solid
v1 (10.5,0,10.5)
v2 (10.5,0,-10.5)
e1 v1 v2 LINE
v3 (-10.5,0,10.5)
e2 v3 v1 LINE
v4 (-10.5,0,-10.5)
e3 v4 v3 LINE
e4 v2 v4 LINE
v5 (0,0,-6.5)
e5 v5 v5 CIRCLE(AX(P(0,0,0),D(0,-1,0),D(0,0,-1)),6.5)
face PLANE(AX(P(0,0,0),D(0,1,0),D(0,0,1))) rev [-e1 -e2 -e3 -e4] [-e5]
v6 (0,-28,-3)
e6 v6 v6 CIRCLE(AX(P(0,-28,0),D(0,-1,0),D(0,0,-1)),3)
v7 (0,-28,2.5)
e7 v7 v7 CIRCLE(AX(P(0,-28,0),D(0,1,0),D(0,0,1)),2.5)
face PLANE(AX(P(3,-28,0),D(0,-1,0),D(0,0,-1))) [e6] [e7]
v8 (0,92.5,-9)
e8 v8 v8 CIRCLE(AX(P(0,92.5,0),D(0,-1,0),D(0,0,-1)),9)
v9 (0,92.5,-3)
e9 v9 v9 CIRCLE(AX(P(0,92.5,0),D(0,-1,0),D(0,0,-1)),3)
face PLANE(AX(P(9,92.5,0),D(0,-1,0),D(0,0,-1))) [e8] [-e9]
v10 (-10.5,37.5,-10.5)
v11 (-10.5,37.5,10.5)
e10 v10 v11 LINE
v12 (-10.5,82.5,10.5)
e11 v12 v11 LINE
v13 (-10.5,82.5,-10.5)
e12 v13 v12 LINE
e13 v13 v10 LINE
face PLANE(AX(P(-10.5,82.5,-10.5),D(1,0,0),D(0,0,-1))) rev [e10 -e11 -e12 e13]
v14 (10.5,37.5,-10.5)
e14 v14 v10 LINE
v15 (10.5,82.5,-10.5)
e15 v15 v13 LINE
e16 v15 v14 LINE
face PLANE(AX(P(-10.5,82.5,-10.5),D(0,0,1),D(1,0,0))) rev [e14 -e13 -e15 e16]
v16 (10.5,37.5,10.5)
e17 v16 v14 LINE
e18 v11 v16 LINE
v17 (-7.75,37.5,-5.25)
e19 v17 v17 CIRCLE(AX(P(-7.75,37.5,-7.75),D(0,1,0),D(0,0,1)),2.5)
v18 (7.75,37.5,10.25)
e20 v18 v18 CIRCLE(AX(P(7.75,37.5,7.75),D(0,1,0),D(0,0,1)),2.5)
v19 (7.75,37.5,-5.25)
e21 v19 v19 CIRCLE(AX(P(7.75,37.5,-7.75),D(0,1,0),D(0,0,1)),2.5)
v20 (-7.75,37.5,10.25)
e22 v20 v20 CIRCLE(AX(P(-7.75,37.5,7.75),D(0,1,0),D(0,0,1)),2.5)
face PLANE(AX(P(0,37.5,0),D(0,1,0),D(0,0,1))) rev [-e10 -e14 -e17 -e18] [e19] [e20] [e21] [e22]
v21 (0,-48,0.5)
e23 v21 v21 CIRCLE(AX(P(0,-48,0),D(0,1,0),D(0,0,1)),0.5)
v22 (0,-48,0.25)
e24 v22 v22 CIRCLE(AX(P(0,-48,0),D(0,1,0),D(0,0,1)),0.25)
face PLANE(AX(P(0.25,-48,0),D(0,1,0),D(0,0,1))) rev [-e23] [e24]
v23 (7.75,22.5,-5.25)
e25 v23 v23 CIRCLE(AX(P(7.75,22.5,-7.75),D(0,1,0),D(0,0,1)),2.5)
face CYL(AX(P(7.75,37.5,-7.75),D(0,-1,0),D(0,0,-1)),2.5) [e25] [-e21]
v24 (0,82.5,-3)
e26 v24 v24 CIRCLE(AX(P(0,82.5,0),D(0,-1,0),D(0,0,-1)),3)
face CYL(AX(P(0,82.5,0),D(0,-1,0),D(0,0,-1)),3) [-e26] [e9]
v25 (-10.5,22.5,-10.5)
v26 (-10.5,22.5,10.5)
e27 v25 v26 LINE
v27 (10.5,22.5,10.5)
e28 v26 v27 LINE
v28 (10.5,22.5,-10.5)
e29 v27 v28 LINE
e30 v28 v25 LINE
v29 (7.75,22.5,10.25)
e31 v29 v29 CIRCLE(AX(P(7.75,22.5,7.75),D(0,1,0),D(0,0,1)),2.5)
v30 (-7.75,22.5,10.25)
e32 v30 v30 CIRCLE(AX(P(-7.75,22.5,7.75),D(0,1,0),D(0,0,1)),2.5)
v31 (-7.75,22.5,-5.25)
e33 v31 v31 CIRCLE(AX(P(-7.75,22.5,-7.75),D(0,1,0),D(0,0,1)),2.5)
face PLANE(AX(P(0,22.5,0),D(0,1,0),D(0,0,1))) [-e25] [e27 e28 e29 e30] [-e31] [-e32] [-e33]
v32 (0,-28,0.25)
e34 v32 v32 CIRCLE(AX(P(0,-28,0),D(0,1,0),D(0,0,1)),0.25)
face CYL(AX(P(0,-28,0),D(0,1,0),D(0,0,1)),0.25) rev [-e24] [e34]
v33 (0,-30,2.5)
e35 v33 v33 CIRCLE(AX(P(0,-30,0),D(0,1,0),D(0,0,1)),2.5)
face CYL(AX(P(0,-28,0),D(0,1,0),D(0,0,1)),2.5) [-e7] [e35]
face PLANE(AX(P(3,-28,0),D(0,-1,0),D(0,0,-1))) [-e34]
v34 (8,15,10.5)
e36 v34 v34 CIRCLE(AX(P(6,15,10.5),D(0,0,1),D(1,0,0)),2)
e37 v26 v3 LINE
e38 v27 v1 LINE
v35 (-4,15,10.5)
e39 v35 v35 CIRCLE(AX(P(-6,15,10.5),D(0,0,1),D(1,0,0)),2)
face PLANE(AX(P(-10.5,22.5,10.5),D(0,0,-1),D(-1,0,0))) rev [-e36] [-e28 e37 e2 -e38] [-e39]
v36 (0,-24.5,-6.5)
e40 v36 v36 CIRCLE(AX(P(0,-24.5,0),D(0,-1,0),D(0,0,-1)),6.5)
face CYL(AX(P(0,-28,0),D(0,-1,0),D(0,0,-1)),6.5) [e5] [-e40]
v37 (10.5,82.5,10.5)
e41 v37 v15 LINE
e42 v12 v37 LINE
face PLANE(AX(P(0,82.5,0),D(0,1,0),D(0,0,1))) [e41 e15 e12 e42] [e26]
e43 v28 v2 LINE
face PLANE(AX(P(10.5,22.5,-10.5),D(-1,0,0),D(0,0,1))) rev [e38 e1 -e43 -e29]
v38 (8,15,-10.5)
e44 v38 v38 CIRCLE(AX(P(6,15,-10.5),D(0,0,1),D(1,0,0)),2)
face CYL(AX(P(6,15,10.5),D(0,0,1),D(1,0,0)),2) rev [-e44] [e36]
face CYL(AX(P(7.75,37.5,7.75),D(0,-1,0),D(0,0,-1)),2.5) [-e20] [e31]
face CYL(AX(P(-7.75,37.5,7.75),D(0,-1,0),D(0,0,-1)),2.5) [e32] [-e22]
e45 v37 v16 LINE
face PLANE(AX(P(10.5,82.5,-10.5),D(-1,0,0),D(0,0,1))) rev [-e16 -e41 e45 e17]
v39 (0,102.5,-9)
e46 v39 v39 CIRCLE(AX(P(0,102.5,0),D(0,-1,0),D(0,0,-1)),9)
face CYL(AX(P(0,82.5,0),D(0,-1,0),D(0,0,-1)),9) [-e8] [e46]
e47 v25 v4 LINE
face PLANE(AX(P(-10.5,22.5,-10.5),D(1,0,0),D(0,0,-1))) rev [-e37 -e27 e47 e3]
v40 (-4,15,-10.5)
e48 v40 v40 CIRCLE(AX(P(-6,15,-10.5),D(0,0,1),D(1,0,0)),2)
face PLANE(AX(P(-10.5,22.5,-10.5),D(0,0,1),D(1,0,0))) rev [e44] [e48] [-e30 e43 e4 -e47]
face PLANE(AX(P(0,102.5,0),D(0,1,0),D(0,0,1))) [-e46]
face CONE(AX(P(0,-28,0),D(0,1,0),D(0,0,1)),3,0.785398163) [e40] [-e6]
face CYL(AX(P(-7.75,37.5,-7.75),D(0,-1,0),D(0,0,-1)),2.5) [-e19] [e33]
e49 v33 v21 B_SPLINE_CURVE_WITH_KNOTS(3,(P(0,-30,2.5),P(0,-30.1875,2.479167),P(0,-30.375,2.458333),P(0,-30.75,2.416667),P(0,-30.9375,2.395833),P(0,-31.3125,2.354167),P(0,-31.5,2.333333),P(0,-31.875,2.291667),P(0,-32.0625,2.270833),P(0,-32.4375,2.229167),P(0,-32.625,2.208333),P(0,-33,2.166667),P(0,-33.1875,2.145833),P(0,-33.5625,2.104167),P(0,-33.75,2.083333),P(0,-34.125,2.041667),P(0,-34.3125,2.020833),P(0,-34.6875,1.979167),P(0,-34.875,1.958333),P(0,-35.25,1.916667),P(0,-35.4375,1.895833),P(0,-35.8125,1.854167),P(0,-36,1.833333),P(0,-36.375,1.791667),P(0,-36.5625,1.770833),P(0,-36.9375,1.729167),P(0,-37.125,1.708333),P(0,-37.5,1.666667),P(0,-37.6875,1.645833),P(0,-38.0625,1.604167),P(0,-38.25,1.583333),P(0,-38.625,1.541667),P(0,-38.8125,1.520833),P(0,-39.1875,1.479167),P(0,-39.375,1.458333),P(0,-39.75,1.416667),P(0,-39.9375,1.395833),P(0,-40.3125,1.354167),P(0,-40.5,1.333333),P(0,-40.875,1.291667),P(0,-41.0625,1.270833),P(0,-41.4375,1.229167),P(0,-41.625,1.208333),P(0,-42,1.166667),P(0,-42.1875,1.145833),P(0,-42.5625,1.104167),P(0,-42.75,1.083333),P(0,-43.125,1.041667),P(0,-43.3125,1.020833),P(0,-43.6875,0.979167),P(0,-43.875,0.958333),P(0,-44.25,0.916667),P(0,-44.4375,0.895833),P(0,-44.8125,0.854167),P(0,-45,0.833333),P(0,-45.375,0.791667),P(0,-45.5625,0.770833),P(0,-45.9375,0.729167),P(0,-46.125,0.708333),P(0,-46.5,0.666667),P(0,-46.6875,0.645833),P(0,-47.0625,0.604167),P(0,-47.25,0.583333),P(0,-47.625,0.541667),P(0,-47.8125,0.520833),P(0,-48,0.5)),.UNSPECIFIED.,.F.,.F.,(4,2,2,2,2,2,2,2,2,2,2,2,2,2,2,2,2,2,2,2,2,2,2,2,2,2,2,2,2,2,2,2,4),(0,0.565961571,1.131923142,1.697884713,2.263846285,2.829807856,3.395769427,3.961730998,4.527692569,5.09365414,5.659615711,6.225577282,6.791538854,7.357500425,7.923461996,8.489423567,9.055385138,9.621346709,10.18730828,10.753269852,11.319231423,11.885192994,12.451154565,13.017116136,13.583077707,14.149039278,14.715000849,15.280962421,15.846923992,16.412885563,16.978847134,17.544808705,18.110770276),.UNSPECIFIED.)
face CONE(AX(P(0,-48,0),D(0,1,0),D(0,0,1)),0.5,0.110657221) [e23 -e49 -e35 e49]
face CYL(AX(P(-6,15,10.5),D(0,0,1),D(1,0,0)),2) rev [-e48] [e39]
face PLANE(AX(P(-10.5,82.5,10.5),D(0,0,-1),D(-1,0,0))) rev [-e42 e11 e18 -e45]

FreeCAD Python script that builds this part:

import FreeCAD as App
import Part
import Sketcher
Q = App.Units.Quantity

doc = App.newDocument("Part")
body = doc.addObject("PartDesign::Body", "Body")

# Sketch on XZ plane
sketch1 = body.newObject("Sketcher::SketchObject", "Sketch")
sketch1.AttachmentSupport = (doc.getObject("XZ_Plane"), [""])
sketch1.MapMode = "FlatFace"
sketch1.addGeometry(Part.LineSegment(App.Vector(-10.5, -10.5, 0), App.Vector(-10.5, 10.5, 0)), False)
sketch1.addGeometry(Part.LineSegment(App.Vector(-10.5, 10.5, 0), App.Vector(10.5, 10.5, 0)), False)
sketch1.addGeometry(Part.LineSegment(App.Vector(10.5, 10.5, 0), App.Vector(10.5, -10.5, 0)), False)
sketch1.addGeometry(Part.LineSegment(App.Vector(10.5, -10.5, 0), App.Vector(-10.5, -10.5, 0)), False)
sketch1.addConstraint(Sketcher.Constraint("Coincident", 0, 2, 1, 1))
sketch1.addConstraint(Sketcher.Constraint("Coincident", 1, 2, 2, 1))
sketch1.addConstraint(Sketcher.Constraint("Coincident", 2, 2, 3, 1))
sketch1.addConstraint(Sketcher.Constraint("Coincident", 3, 2, 0, 1))
sketch1.addConstraint(Sketcher.Constraint("Vertical", 0))
sketch1.addConstraint(Sketcher.Constraint("Horizontal", 1))
sketch1.addConstraint(Sketcher.Constraint("Vertical", 2))
sketch1.addConstraint(Sketcher.Constraint("Horizontal", 3))
sketch1.addConstraint(Sketcher.Constraint("Symmetric", 0, 2, 2, 2, -1, 1))
sketch1.addConstraint(Sketcher.Constraint("Equal", 3, 0))
sketch1.addConstraint(Sketcher.Constraint("DistanceX", 1, 1, 1, 2, Q("21 mm")))
pad1 = body.newObject("PartDesign::Pad", "Pad")
pad1.Profile = sketch1
pad1.Length = 22.5
pad1.Reversed = True

# Sketch on XY plane
sketch2 = body.newObject("Sketcher::SketchObject", "Sketch001")
sketch2.AttachmentSupport = (doc.getObject("XY_Plane"), [""])
sketch2.MapMode = "FlatFace"
sketch2.addGeometry(Part.LineSegment(App.Vector(6.5, 0, 0), App.Vector(0, 0, 0)), False)
sketch2.addGeometry(Part.LineSegment(App.Vector(0, 0, 0), App.Vector(0, -28, 0)), False)
sketch2.addGeometry(Part.LineSegment(App.Vector(0, -28, 0), App.Vector(3, -28, 0)), False)
sketch2.addGeometry(Part.LineSegment(App.Vector(3, -28, 0), App.Vector(6.5, -24.5, 0)), False)
sketch2.addGeometry(Part.LineSegment(App.Vector(6.5, -24.5, 0), App.Vector(6.5, 0, 0)), False)
sketch2.addConstraint(Sketcher.Constraint("Coincident", 0, 2, 1, 1))
sketch2.addConstraint(Sketcher.Constraint("Coincident", 1, 2, 2, 1))
sketch2.addConstraint(Sketcher.Constraint("Coincident", 2, 2, 3, 1))
sketch2.addConstraint(Sketcher.Constraint("Coincident", 3, 2, 4, 1))
sketch2.addConstraint(Sketcher.Constraint("Coincident", 4, 2, 0, 1))
sketch2.addConstraint(Sketcher.Constraint("Horizontal", 0))
sketch2.addConstraint(Sketcher.Constraint("Vertical", 1))
sketch2.addConstraint(Sketcher.Constraint("Horizontal", 2))
sketch2.addConstraint(Sketcher.Constraint("Vertical", 4))
sketch2.addConstraint(Sketcher.Constraint("Coincident", 0, 2, -1, 1))
sketch2.addConstraint(Sketcher.Constraint("DistanceX", 2, 1, 2, 2, Q("3 mm")))
sketch2.addConstraint(Sketcher.Constraint("DistanceY", 1, 2, 1, 1, Q("28 mm")))
sketch2.addConstraint(Sketcher.Constraint("Angle", 3, Q("45 deg")))
sketch2.addConstraint(Sketcher.Constraint("DistanceX", 0, 2, 0, 1, Q("6.5 mm")))
revolution = body.newObject("PartDesign::Revolution", "Revolution")
revolution.Profile = sketch2
revolution.ReferenceAxis = (sketch2, ["V_Axis"])
revolution.Angle = 360

# Sketch on XY plane
sketch3 = body.newObject("Sketcher::SketchObject", "Sketch002")
sketch3.AttachmentSupport = (doc.getObject("XY_Plane"), [""])
sketch3.MapMode = "FlatFace"
sketch3.AttachmentOffset = App.Placement(App.Vector(0, 0, 10.5), App.Rotation())
sketch3.addGeometry(Part.Circle(App.Vector(-6, 15, 0), App.Vector(0, 0, 1), 2), False)
sketch3.addGeometry(Part.Circle(App.Vector(6, 15, 0), App.Vector(0, 0, 1), 2), False)
sketch3.addConstraint(Sketcher.Constraint("Equal", 0, 1))
sketch3.addConstraint(Sketcher.Constraint("Symmetric", 0, 3, 1, 3, -2))
sketch3.addConstraint(Sketcher.Constraint("Diameter", 0, Q("4 mm")))
sketch3.addConstraint(Sketcher.Constraint("DistanceX", 0, 3, -1, 1, Q("6 mm")))
sketch3.addConstraint(Sketcher.Constraint("DistanceY", -1, 1, 0, 3, Q("15 mm")))
doc.recompute()
hole = body.newObject("PartDesign::Hole", "Hole")
hole.Profile = sketch3
hole.ThreadType = "None"
hole.Diameter = 4
hole.DepthType = "ThroughAll"

# Sketch on XY plane
sketch4 = body.newObject("Sketcher::SketchObject", "Sketch003")
sketch4.AttachmentSupport = (doc.getObject("XY_Plane"), [""])
sketch4.MapMode = "FlatFace"
sketch4.addGeometry(Part.LineSegment(App.Vector(2.5, -28, 0), App.Vector(0.25, -28, 0)), False)
sketch4.addGeometry(Part.LineSegment(App.Vector(0.25, -28, 0), App.Vector(0.25, -48, 0)), False)
sketch4.addGeometry(Part.LineSegment(App.Vector(0.25, -48, 0), App.Vector(0.5, -48, 0)), False)
sketch4.addGeometry(Part.LineSegment(App.Vector(0.5, -48, 0), App.Vector(2.5, -30, 0)), False)
sketch4.addGeometry(Part.LineSegment(App.Vector(2.5, -30, 0), App.Vector(2.5, -28, 0)), False)
sketch4.addConstraint(Sketcher.Constraint("Coincident", 0, 2, 1, 1))
sketch4.addConstraint(Sketcher.Constraint("Coincident", 1, 2, 2, 1))
sketch4.addConstraint(Sketcher.Constraint("Coincident", 2, 2, 3, 1))
sketch4.addConstraint(Sketcher.Constraint("Coincident", 3, 2, 4, 1))
sketch4.addConstraint(Sketcher.Constraint("Coincident", 4, 2, 0, 1))
sketch4.addConstraint(Sketcher.Constraint("Horizontal", 0))
sketch4.addConstraint(Sketcher.Constraint("Vertical", 1))
sketch4.addConstraint(Sketcher.Constraint("Horizontal", 2))
sketch4.addConstraint(Sketcher.Constraint("Vertical", 4))
sketch4.addConstraint(Sketcher.Constraint("DistanceY", 1, 2, 1, 1, Q("20 mm")))
sketch4.addConstraint(Sketcher.Constraint("DistanceY", 4, 1, 4, 2, Q("2 mm")))
sketch4.addConstraint(Sketcher.Constraint("DistanceY", 0, 2, -1, 1, Q("28 mm")))
sketch4.addConstraint(Sketcher.Constraint("DistanceX", 2, 2, 3, 2, Q("2 mm")))
sketch4.addConstraint(Sketcher.Constraint("DistanceX", 0, 2, 0, 1, Q("2.25 mm")))
sketch4.addConstraint(Sketcher.Constraint("DistanceX", -1, 1, 2, 2, Q("0.5 mm")))
revolution2 = body.newObject("PartDesign::Revolution", "Revolution001")
revolution2.Profile = sketch4
revolution2.ReferenceAxis = (sketch4, ["V_Axis"])
revolution2.Angle = 360

# Sketch on XZ plane
sketch5 = body.newObject("Sketcher::SketchObject", "Sketch004")
sketch5.AttachmentSupport = (doc.getObject("XZ_Plane"), [""])
sketch5.MapMode = "FlatFace"
sketch5.AttachmentOffset = App.Placement(App.Vector(0, 0, -22.5), App.Rotation())
sketch5.addGeometry(Part.Circle(App.Vector(-7.75, -7.75, 0), App.Vector(0, 0, 1), 2.5), False)
sketch5.addGeometry(Part.Circle(App.Vector(7.75, -7.75, 0), App.Vector(0, 0, 1), 2.5), False)
sketch5.addGeometry(Part.Circle(App.Vector(7.75, 7.75, 0), App.Vector(0, 0, 1), 2.5), False)
sketch5.addGeometry(Part.Circle(App.Vector(-7.75, 7.75, 0), App.Vector(0, 0, 1), 2.5), False)
sketch5.addConstraint(Sketcher.Constraint("Equal", 0, 1))
sketch5.addConstraint(Sketcher.Constraint("Equal", 1, 2))
sketch5.addConstraint(Sketcher.Constraint("Equal", 2, 3))
sketch5.addConstraint(Sketcher.Constraint("Symmetric", 0, 3, 2, 3, -1, 1))
sketch5.addConstraint(Sketcher.Constraint("Symmetric", 1, 3, 3, 3, -1, 1))
sketch5.addConstraint(Sketcher.Constraint("Symmetric", 0, 3, 1, 3, -2))
sketch5.addConstraint(Sketcher.Constraint("Diameter", 0, Q("5 mm")))
sketch5.addConstraint(Sketcher.Constraint("DistanceX", 0, 3, 1, 3, Q("15.5 mm")))
sketch5.addConstraint(Sketcher.Constraint("DistanceY", 1, 3, 2, 3, Q("15.5 mm")))
pad2 = body.newObject("PartDesign::Pad", "Pad001")
pad2.Profile = sketch5
pad2.Length = 15
pad2.Reversed = True

# Sketch on XZ plane
sketch6 = body.newObject("Sketcher::SketchObject", "Sketch005")
sketch6.AttachmentSupport = (doc.getObject("XZ_Plane"), [""])
sketch6.MapMode = "FlatFace"
sketch6.AttachmentOffset = App.Placement(App.Vector(0, 0, -37.5), App.Rotation())
sketch6.addGeometry(Part.LineSegment(App.Vector(-10.5, -10.5, 0), App.Vector(-10.5, 10.5, 0)), False)
sketch6.addGeometry(Part.LineSegment(App.Vector(-10.5, 10.5, 0), App.Vector(10.5, 10.5, 0)), False)
sketch6.addGeometry(Part.LineSegment(App.Vector(10.5, 10.5, 0), App.Vector(10.5, -10.5, 0)), False)
sketch6.addGeometry(Part.LineSegment(App.Vector(10.5, -10.5, 0), App.Vector(-10.5, -10.5, 0)), False)
sketch6.addConstraint(Sketcher.Constraint("Coincident", 0, 2, 1, 1))
sketch6.addConstraint(Sketcher.Constraint("Coincident", 1, 2, 2, 1))
sketch6.addConstraint(Sketcher.Constraint("Coincident", 2, 2, 3, 1))
sketch6.addConstraint(Sketcher.Constraint("Coincident", 3, 2, 0, 1))
sketch6.addConstraint(Sketcher.Constraint("Vertical", 0))
sketch6.addConstraint(Sketcher.Constraint("Horizontal", 1))
sketch6.addConstraint(Sketcher.Constraint("Vertical", 2))
sketch6.addConstraint(Sketcher.Constraint("Horizontal", 3))
sketch6.addConstraint(Sketcher.Constraint("Symmetric", 0, 2, 2, 2, -1, 1))
sketch6.addConstraint(Sketcher.Constraint("Equal", 3, 0))
sketch6.addConstraint(Sketcher.Constraint("DistanceX", 1, 1, 1, 2, Q("21 mm")))
pad3 = body.newObject("PartDesign::Pad", "Pad002")
pad3.Profile = sketch6
pad3.Length = 45
pad3.Reversed = True

# Sketch on XY plane
sketch7 = body.newObject("Sketcher::SketchObject", "Sketch006")
sketch7.AttachmentSupport = (doc.getObject("XY_Plane"), [""])
sketch7.MapMode = "FlatFace"
sketch7.addGeometry(Part.LineSegment(App.Vector(0, 102.5, 0), App.Vector(0, 82.5, 0)), False)
sketch7.addGeometry(Part.LineSegment(App.Vector(0, 82.5, 0), App.Vector(3, 82.5, 0)), False)
sketch7.addGeometry(Part.LineSegment(App.Vector(3, 82.5, 0), App.Vector(3, 92.5, 0)), False)
sketch7.addGeometry(Part.LineSegment(App.Vector(3, 92.5, 0), App.Vector(9, 92.5, 0)), False)
sketch7.addGeometry(Part.LineSegment(App.Vector(9, 92.5, 0), App.Vector(9, 102.5, 0)), False)
sketch7.addGeometry(Part.LineSegment(App.Vector(9, 102.5, 0), App.Vector(0, 102.5, 0)), False)
sketch7.addConstraint(Sketcher.Constraint("Coincident", 0, 2, 1, 1))
sketch7.addConstraint(Sketcher.Constraint("Coincident", 1, 2, 2, 1))
sketch7.addConstraint(Sketcher.Constraint("Coincident", 2, 2, 3, 1))
sketch7.addConstraint(Sketcher.Constraint("Coincident", 3, 2, 4, 1))
sketch7.addConstraint(Sketcher.Constraint("Coincident", 4, 2, 5, 1))
sketch7.addConstraint(Sketcher.Constraint("Coincident", 5, 2, 0, 1))
sketch7.addConstraint(Sketcher.Constraint("Vertical", 0))
sketch7.addConstraint(Sketcher.Constraint("Horizontal", 1))
sketch7.addConstraint(Sketcher.Constraint("Vertical", 2))
sketch7.addConstraint(Sketcher.Constraint("Horizontal", 3))
sketch7.addConstraint(Sketcher.Constraint("Vertical", 4))
sketch7.addConstraint(Sketcher.Constraint("Horizontal", 5))
sketch7.addConstraint(Sketcher.Constraint("PointOnObject", 0, 2, -2))
sketch7.addConstraint(Sketcher.Constraint("Equal", 2, 4))
sketch7.addConstraint(Sketcher.Constraint("DistanceX", 1, 1, 1, 2, Q("3 mm")))
sketch7.addConstraint(Sketcher.Constraint("DistanceX", 3, 1, 3, 2, Q("6 mm")))
sketch7.addConstraint(Sketcher.Constraint("DistanceY", 0, 2, 0, 1, Q("20 mm")))
sketch7.addConstraint(Sketcher.Constraint("DistanceY", -1, 1, 0, 2, Q("82.5 mm")))
revolution3 = body.newObject("PartDesign::Revolution", "Revolution002")
revolution3.Profile = sketch7
revolution3.ReferenceAxis = (sketch7, ["V_Axis"])
revolution3.Angle = 360

doc.recompute()
